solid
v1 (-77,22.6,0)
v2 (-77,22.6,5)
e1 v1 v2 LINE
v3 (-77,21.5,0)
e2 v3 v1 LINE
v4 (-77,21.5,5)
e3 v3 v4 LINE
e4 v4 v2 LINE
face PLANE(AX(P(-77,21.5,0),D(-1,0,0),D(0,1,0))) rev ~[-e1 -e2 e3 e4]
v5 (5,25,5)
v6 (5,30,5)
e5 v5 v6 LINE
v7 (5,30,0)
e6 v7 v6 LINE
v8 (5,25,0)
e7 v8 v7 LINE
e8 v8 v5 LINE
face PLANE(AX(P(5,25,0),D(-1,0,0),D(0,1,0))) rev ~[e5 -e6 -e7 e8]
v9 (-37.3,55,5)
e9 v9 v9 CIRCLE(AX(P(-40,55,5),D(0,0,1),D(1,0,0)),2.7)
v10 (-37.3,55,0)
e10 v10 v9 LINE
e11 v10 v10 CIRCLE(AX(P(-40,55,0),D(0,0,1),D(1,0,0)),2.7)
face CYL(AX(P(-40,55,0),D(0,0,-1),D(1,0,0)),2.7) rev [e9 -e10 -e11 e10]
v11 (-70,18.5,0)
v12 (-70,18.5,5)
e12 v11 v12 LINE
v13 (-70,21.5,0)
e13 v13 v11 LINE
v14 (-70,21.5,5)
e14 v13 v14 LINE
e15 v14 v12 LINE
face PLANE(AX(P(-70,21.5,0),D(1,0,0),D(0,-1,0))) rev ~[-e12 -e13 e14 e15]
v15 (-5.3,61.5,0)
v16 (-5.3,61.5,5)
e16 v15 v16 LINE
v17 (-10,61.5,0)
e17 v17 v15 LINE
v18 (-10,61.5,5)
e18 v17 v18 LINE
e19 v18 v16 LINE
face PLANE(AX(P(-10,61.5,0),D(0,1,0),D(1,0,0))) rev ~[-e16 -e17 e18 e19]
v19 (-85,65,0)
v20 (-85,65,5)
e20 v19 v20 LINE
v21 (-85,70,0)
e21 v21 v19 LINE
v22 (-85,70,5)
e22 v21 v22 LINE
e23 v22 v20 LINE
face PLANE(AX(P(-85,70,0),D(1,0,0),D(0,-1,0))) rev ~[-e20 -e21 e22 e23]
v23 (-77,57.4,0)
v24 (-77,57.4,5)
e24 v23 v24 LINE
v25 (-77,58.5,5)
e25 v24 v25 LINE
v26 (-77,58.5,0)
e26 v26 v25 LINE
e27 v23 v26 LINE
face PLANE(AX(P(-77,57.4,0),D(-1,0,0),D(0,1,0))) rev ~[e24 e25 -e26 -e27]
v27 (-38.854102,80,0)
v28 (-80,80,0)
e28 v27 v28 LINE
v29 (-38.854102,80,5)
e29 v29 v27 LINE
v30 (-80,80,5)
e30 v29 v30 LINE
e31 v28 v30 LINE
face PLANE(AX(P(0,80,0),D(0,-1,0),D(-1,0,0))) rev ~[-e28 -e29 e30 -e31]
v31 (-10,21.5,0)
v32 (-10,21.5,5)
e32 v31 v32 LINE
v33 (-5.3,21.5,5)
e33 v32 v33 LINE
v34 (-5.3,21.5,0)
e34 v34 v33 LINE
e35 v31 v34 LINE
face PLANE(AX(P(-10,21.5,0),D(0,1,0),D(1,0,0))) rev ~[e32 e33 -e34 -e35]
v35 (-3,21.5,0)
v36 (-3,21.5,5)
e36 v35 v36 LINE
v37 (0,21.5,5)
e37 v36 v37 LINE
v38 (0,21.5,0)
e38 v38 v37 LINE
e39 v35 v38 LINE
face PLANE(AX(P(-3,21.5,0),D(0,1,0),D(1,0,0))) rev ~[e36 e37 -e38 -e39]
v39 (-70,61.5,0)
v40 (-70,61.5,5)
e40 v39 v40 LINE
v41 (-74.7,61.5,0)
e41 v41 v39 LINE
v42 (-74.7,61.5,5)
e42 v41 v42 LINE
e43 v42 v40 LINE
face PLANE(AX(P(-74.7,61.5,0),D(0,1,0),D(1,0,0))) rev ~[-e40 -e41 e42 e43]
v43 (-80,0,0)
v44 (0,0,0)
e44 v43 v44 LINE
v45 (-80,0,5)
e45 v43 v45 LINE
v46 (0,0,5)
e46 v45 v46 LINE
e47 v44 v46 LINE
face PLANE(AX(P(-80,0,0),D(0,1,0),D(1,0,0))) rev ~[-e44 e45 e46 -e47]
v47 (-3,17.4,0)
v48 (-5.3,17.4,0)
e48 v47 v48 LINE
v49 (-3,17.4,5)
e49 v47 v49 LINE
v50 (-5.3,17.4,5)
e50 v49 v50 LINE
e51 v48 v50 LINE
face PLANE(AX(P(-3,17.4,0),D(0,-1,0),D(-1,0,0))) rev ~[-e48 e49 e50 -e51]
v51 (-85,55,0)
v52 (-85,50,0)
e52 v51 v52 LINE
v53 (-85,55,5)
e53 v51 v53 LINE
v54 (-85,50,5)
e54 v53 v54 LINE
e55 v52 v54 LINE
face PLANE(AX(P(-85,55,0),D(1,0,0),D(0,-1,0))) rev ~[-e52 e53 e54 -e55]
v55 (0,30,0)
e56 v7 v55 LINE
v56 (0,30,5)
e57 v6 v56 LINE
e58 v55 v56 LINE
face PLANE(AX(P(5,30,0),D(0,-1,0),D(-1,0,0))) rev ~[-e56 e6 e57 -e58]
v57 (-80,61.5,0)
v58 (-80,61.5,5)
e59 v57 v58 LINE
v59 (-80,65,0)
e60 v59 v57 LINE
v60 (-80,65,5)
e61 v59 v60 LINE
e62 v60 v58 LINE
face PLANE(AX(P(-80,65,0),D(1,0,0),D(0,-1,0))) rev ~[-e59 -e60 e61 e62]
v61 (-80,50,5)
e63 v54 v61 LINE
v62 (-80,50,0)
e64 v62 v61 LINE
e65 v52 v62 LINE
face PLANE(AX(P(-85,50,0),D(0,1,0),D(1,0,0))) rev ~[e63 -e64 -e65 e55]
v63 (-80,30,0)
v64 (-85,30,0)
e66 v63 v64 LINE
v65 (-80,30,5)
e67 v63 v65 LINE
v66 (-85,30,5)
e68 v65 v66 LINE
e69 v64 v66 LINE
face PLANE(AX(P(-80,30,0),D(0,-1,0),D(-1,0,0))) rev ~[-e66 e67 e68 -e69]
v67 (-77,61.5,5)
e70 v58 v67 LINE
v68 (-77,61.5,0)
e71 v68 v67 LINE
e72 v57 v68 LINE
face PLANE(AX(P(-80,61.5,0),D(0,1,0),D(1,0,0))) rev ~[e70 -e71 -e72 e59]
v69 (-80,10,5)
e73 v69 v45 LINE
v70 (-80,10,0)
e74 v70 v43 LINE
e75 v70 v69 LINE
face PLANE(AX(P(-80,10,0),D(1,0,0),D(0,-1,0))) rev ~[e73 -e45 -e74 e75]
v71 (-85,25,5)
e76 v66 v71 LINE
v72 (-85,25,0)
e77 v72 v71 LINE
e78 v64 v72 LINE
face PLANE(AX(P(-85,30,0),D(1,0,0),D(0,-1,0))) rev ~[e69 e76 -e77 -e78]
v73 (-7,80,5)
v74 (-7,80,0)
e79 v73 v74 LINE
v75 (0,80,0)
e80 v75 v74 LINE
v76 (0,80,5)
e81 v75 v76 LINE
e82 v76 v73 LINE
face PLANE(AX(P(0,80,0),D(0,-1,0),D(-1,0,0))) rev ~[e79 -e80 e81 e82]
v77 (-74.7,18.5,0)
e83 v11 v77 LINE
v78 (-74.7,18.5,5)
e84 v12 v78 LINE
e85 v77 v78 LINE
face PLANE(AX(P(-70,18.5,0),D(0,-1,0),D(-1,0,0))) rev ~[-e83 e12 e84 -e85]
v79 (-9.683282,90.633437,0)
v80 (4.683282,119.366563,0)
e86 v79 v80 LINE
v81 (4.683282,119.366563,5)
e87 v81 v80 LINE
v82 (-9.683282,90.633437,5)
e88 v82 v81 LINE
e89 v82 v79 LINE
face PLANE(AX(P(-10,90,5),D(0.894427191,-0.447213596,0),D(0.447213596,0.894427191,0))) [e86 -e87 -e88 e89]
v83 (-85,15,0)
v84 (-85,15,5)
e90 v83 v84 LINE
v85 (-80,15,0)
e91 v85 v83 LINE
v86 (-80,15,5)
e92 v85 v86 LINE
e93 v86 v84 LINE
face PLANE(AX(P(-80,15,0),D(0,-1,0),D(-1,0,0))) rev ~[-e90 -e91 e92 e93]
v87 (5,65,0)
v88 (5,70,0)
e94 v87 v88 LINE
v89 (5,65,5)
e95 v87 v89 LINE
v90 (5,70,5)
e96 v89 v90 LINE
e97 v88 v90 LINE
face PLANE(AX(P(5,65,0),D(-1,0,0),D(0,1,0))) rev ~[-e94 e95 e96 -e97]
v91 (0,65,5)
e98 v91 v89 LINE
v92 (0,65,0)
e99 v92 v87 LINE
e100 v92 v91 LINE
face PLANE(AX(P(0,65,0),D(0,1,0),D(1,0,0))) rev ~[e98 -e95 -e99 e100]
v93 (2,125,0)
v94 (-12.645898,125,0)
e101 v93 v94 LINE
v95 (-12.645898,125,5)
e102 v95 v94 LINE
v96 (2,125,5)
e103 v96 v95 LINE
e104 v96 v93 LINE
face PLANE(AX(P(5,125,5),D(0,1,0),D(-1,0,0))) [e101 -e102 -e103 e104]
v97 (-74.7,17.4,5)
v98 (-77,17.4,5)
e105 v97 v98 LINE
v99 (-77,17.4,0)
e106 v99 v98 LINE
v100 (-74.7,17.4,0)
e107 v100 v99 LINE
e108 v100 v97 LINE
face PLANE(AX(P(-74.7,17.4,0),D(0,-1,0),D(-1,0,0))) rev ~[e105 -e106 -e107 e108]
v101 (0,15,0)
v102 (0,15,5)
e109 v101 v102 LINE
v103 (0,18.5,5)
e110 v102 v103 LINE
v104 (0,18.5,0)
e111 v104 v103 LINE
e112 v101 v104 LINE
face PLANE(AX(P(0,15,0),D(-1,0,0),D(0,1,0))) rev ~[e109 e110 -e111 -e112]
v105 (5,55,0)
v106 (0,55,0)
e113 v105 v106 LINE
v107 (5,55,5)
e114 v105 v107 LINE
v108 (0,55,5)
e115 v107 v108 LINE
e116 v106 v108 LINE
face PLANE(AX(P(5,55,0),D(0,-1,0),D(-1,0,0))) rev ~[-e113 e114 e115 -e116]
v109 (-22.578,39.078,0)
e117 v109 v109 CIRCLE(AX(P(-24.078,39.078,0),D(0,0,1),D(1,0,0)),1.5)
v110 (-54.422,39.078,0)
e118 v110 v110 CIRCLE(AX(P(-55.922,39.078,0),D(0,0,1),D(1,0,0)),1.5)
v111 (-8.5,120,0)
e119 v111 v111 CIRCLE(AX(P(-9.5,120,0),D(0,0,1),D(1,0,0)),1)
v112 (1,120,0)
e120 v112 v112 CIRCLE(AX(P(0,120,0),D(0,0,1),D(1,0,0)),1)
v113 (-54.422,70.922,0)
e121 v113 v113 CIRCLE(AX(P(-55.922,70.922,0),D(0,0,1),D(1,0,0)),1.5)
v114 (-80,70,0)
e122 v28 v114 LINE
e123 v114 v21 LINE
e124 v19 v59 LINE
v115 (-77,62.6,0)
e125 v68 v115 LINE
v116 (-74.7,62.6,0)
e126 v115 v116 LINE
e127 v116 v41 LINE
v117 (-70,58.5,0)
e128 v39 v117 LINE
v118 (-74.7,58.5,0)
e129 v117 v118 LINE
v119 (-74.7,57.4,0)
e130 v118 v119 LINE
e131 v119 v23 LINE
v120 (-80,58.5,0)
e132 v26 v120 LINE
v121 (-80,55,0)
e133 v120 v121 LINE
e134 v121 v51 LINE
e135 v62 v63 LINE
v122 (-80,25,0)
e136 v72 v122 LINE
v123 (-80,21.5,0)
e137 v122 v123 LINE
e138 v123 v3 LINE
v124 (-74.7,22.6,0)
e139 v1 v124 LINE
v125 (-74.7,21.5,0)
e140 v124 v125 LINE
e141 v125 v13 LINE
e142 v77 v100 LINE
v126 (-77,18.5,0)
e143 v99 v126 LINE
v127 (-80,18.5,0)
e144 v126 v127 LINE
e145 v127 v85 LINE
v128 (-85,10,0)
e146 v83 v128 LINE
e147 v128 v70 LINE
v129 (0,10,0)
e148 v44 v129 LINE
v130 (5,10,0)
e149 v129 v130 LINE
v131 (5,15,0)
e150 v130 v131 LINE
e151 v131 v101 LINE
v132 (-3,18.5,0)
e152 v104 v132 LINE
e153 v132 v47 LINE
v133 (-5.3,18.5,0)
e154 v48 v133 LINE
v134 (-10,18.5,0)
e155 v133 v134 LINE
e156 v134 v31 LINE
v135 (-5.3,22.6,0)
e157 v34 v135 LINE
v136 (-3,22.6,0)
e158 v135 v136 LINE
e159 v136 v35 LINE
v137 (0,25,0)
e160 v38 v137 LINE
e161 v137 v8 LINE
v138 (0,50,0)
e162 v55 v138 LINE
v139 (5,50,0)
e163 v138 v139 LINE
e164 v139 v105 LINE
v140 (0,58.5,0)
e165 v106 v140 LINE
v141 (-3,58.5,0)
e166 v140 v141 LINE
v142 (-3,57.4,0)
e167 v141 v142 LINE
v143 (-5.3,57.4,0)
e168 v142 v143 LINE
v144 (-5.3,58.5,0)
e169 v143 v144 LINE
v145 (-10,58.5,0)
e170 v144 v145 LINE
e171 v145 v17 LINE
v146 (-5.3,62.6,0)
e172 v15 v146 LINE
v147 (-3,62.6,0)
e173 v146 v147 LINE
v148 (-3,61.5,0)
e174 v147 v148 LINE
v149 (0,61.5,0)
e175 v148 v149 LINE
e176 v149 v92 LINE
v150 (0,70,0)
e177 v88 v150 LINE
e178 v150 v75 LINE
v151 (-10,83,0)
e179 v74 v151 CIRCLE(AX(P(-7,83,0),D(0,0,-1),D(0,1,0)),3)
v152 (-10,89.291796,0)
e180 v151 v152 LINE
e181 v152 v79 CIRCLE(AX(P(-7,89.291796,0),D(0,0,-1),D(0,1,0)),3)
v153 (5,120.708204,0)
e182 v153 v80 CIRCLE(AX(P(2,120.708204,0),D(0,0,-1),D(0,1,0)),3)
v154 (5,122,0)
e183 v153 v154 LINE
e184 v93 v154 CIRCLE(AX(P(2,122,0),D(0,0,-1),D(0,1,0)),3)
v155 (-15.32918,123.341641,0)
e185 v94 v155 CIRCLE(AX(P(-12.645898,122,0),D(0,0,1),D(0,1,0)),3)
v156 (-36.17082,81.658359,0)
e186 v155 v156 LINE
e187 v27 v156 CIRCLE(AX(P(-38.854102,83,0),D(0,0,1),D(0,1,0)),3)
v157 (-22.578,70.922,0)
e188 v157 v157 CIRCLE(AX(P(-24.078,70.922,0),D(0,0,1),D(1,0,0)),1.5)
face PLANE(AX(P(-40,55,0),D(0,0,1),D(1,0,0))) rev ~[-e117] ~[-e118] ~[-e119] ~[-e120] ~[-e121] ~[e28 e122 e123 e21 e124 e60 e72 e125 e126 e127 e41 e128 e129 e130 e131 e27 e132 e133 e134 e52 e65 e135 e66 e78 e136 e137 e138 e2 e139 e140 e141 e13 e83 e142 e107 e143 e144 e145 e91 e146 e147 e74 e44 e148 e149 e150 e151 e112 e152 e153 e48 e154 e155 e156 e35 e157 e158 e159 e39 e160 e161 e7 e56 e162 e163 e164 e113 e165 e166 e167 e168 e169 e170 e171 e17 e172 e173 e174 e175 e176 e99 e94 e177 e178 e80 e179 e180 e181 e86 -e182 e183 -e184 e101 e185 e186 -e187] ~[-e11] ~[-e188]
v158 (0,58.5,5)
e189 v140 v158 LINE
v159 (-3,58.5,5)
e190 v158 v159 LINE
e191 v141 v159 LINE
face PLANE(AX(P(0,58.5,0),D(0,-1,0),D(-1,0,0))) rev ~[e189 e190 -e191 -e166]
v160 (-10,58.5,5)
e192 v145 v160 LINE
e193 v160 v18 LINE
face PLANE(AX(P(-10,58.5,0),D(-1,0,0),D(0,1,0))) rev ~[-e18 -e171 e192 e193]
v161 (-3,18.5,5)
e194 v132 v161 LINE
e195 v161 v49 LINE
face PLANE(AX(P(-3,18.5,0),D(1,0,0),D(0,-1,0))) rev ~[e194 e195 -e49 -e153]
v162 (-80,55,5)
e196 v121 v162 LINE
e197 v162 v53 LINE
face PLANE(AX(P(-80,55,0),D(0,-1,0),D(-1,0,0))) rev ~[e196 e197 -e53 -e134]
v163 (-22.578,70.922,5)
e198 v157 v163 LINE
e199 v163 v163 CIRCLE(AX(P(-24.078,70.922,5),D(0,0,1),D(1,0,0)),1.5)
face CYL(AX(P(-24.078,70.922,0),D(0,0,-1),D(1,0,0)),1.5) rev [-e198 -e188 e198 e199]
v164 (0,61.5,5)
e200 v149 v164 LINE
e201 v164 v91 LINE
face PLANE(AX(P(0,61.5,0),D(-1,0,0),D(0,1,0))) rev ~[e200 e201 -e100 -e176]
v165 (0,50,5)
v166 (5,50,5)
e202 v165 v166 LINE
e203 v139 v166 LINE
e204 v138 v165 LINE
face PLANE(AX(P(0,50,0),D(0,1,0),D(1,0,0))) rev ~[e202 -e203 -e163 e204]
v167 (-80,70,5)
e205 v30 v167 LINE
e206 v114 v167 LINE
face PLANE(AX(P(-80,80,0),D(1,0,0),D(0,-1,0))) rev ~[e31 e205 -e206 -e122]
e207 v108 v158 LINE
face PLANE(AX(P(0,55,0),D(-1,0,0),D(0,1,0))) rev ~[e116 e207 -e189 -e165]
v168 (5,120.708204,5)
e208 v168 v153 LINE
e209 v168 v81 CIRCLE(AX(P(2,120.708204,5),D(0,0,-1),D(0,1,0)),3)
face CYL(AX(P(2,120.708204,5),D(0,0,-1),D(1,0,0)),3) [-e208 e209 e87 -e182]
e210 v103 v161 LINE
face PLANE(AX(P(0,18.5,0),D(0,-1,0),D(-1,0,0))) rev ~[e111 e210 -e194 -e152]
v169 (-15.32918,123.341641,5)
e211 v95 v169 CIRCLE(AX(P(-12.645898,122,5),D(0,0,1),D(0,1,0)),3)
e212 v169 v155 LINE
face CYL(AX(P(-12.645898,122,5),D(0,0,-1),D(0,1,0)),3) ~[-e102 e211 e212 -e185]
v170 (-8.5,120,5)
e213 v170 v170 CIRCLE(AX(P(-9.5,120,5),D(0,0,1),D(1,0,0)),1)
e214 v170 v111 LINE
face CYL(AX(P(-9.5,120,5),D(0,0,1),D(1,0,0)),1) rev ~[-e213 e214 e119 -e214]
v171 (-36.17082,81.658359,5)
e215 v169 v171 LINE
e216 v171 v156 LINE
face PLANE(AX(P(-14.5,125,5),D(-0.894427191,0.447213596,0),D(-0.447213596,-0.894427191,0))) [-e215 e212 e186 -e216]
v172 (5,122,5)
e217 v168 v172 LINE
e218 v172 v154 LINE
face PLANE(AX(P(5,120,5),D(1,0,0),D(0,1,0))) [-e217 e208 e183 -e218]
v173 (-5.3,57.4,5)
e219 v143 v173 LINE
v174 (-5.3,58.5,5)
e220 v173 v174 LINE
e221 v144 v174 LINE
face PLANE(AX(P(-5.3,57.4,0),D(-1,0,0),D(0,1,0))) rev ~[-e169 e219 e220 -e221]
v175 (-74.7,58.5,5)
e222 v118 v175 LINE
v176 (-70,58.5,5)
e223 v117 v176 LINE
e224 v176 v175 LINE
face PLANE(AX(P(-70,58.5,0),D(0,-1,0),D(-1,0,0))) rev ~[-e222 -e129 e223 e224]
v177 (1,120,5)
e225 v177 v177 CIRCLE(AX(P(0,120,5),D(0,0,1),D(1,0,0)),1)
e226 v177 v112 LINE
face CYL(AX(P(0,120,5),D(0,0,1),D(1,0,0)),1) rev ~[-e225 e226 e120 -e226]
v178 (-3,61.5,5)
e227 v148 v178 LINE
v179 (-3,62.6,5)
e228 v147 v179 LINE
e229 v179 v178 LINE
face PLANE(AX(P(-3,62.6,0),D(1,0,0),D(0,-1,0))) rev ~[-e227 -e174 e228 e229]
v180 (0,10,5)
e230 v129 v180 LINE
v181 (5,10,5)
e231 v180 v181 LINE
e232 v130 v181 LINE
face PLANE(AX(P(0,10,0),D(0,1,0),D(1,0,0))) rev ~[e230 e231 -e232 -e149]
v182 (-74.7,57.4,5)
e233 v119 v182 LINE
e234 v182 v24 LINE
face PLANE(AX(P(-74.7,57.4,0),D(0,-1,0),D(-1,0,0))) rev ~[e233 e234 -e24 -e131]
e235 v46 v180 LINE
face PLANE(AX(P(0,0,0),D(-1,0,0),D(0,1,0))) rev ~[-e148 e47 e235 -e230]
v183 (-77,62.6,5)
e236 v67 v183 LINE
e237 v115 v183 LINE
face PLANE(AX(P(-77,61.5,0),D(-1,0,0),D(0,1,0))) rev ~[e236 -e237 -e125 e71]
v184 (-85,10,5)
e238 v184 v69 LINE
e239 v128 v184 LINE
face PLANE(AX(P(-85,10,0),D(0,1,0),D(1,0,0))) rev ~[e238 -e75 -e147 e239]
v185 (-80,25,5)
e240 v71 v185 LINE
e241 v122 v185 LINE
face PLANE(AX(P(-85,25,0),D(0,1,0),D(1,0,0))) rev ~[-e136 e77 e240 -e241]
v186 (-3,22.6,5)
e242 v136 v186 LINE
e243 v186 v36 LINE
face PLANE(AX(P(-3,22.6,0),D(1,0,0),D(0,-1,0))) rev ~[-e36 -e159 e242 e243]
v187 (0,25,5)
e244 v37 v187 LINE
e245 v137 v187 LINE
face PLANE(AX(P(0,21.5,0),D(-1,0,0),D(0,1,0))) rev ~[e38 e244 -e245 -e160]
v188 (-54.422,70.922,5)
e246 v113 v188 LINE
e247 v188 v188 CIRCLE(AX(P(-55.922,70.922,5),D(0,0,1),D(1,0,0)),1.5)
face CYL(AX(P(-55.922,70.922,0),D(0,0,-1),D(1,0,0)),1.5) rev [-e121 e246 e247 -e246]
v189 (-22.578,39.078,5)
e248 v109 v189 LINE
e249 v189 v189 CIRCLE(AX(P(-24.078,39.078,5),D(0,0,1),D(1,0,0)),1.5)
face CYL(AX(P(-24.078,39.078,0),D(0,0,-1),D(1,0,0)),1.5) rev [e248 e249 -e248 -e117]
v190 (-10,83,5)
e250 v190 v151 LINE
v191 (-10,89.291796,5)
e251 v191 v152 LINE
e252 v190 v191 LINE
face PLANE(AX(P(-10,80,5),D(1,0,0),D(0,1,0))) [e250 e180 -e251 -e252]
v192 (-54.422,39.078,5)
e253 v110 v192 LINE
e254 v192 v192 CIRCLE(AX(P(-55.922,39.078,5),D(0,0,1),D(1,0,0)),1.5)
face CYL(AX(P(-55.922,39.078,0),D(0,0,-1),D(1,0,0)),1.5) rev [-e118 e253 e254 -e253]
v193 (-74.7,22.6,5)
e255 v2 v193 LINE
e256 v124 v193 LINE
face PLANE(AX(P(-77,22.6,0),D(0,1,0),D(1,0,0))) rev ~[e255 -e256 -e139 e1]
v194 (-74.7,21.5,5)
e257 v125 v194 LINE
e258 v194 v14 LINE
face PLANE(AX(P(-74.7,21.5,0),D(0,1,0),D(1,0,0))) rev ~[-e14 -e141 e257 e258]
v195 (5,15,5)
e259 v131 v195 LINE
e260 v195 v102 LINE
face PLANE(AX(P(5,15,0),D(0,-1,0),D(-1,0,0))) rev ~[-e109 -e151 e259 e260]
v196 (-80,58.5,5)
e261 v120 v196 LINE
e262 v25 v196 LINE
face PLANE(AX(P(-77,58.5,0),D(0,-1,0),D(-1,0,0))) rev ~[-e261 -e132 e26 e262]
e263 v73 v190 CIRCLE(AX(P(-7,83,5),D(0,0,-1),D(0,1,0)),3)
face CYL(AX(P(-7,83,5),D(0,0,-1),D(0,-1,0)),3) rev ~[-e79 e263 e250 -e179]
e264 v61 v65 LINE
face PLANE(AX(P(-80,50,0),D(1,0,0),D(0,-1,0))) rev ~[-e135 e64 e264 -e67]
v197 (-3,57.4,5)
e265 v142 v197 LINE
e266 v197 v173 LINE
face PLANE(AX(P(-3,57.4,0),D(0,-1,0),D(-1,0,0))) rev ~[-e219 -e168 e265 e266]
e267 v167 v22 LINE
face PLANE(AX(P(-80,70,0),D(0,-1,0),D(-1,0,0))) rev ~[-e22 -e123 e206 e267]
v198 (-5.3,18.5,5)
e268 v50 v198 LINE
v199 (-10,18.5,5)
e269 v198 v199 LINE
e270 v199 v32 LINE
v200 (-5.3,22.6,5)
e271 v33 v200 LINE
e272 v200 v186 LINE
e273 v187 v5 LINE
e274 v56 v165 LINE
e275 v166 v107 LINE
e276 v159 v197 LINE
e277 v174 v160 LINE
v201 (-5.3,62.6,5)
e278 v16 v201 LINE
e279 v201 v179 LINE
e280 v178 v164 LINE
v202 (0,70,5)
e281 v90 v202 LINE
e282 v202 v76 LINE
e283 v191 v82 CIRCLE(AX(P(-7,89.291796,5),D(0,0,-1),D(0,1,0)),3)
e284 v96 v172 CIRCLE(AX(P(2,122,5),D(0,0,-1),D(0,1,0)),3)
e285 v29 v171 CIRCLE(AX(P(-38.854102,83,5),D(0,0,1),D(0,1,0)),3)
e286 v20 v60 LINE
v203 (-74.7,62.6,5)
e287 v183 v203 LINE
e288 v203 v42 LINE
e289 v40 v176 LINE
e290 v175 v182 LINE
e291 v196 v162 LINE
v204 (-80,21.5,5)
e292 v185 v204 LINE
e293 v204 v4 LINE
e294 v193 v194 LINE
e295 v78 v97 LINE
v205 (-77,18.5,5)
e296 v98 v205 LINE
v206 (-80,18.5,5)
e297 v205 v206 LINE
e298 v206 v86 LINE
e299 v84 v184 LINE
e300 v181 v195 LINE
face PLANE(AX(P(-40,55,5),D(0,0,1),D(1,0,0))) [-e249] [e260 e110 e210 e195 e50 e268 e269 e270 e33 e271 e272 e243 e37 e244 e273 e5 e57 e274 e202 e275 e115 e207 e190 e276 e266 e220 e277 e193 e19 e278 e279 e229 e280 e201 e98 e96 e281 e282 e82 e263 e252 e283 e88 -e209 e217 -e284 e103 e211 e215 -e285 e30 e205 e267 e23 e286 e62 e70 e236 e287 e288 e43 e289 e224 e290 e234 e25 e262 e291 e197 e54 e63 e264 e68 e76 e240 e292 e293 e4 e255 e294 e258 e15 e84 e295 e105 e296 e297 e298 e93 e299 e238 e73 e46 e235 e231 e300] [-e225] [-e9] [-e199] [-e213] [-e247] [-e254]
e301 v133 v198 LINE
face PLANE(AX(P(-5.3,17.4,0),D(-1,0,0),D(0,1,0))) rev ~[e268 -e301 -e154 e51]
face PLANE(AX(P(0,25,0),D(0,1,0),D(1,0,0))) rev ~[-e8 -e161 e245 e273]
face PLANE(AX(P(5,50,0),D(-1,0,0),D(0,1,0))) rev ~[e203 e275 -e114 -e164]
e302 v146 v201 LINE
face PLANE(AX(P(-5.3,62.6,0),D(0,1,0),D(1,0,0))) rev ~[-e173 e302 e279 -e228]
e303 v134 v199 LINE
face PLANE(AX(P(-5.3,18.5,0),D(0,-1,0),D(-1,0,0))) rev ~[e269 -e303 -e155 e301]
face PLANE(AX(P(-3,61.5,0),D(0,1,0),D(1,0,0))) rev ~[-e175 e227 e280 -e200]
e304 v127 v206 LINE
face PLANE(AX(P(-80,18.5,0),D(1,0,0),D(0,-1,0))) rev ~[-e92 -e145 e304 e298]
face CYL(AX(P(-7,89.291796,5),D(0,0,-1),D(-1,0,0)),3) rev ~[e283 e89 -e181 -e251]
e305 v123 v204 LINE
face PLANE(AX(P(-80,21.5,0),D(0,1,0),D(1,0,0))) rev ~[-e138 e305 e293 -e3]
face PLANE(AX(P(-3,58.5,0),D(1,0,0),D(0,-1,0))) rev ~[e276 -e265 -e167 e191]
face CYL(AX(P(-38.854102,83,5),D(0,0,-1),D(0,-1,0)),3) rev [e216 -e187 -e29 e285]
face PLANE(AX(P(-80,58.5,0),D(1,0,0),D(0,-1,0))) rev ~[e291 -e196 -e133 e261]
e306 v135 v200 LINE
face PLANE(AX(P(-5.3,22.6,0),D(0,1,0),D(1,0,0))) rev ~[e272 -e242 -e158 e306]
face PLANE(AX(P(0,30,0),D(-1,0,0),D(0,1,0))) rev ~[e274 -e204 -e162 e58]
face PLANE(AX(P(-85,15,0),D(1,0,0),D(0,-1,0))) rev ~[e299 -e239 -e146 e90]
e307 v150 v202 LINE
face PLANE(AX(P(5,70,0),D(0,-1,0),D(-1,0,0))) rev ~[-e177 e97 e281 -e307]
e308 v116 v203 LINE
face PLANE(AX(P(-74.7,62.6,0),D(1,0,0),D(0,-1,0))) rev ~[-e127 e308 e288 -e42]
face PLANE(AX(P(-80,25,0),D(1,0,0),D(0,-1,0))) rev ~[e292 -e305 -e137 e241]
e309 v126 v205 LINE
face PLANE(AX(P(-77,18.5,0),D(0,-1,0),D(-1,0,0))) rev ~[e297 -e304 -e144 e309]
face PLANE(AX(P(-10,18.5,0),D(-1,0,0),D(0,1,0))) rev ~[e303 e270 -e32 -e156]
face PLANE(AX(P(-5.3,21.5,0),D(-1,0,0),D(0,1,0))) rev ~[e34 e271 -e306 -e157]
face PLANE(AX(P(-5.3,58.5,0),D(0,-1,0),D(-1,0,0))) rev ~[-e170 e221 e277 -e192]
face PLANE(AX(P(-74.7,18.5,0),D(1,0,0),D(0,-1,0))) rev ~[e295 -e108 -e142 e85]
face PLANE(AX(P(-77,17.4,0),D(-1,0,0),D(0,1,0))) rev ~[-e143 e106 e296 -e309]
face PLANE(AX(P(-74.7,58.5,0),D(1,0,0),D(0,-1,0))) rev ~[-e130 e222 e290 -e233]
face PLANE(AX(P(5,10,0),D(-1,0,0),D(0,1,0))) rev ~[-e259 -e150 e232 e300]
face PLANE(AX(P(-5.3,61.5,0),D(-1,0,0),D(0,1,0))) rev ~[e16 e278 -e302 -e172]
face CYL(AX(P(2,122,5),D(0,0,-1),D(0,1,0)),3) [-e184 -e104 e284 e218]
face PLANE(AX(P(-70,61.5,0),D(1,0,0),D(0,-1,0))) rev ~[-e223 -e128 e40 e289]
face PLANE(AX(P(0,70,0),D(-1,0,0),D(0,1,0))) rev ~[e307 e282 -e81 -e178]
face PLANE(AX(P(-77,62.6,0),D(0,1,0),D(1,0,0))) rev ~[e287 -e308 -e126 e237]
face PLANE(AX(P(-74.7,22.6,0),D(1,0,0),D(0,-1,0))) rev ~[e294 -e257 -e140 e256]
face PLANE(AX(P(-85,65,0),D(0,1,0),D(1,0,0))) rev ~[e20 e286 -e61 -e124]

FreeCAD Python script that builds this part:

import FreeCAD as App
import Part
import Sketcher
from FreeCAD import Vector


def edges_at(feature, points):
    """Names of the edges that pass closest to the given points."""
    edges = feature.Shape.Edges
    near = lambda p: min(range(len(edges)), key=lambda i: edges[i].distToShape(Part.Vertex(*p))[0])
    return sorted({f"Edge{near(p) + 1}" for p in points})

doc = App.newDocument("Part")
body = doc.addObject("PartDesign::Body", "Body")

# Sketch on XY plane
sketch1 = doc.addObject("Sketcher::SketchObject", "Sketch")
body.addObject(sketch1)
sketch1.AttachmentSupport = (doc.XY_Plane, [""])
sketch1.MapMode = "FlatFace"
sketch1.addGeometry([
    Part.LineSegment(Vector(0, 80, 0), Vector(-80, 80, 0)),  # 0
    Part.LineSegment(Vector(-80, 80, 0), Vector(-80, 70, 0)),  # 1
    Part.LineSegment(Vector(-80, 70, 0), Vector(-85, 70, 0)),  # 2
    Part.LineSegment(Vector(-85, 70, 0), Vector(-85, 65, 0)),  # 3
    Part.LineSegment(Vector(-85, 65, 0), Vector(-80, 65, 0)),  # 4
    Part.LineSegment(Vector(-80, 65, 0), Vector(-80, 61.5, 0)),  # 5
    Part.LineSegment(Vector(-80, 61.5, 0), Vector(-77, 61.5, 0)),  # 6
    Part.LineSegment(Vector(-77, 61.5, 0), Vector(-77, 62.6, 0)),  # 7
    Part.LineSegment(Vector(-77, 62.6, 0), Vector(-74.7, 62.6, 0)),  # 8
    Part.LineSegment(Vector(-74.7, 62.6, 0), Vector(-74.7, 61.5, 0)),  # 9
    Part.LineSegment(Vector(-74.7, 61.5, 0), Vector(-70, 61.5, 0)),  # 10
    Part.LineSegment(Vector(-70, 61.5, 0), Vector(-70, 58.5, 0)),  # 11
    Part.LineSegment(Vector(-70, 58.5, 0), Vector(-74.7, 58.5, 0)),  # 12
    Part.LineSegment(Vector(-74.7, 58.5, 0), Vector(-74.7, 57.4, 0)),  # 13
    Part.LineSegment(Vector(-74.7, 57.4, 0), Vector(-77, 57.4, 0)),  # 14
    Part.LineSegment(Vector(-77, 57.4, 0), Vector(-77, 58.5, 0)),  # 15
    Part.LineSegment(Vector(-77, 58.5, 0), Vector(-80, 58.5, 0)),  # 16
    Part.LineSegment(Vector(-80, 58.5, 0), Vector(-80, 55, 0)),  # 17
    Part.LineSegment(Vector(-80, 55, 0), Vector(-85, 55, 0)),  # 18
    Part.LineSegment(Vector(-85, 55, 0), Vector(-85, 50, 0)),  # 19
    Part.LineSegment(Vector(-85, 50, 0), Vector(-80, 50, 0)),  # 20
    Part.LineSegment(Vector(-80, 50, 0), Vector(-80, 30, 0)),  # 21
    Part.LineSegment(Vector(-80, 30, 0), Vector(-85, 30, 0)),  # 22
    Part.LineSegment(Vector(-85, 30, 0), Vector(-85, 25, 0)),  # 23
    Part.LineSegment(Vector(-85, 25, 0), Vector(-80, 25, 0)),  # 24
    Part.LineSegment(Vector(-80, 25, 0), Vector(-80, 21.5, 0)),  # 25
    Part.LineSegment(Vector(-80, 21.5, 0), Vector(-77, 21.5, 0)),  # 26
    Part.LineSegment(Vector(-77, 21.5, 0), Vector(-77, 22.6, 0)),  # 27
    Part.LineSegment(Vector(-77, 22.6, 0), Vector(-74.7, 22.6, 0)),  # 28
    Part.LineSegment(Vector(-74.7, 22.6, 0), Vector(-74.7, 21.5, 0)),  # 29
    Part.LineSegment(Vector(-74.7, 21.5, 0), Vector(-70, 21.5, 0)),  # 30
    Part.LineSegment(Vector(-70, 21.5, 0), Vector(-70, 18.5, 0)),  # 31
    Part.LineSegment(Vector(-70, 18.5, 0), Vector(-74.7, 18.5, 0)),  # 32
    Part.LineSegment(Vector(-74.7, 18.5, 0), Vector(-74.7, 17.4, 0)),  # 33
    Part.LineSegment(Vector(-74.7, 17.4, 0), Vector(-77, 17.4, 0)),  # 34
    Part.LineSegment(Vector(-77, 17.4, 0), Vector(-77, 18.5, 0)),  # 35
    Part.LineSegment(Vector(-77, 18.5, 0), Vector(-80, 18.5, 0)),  # 36
    Part.LineSegment(Vector(-80, 18.5, 0), Vector(-80, 15, 0)),  # 37
    Part.LineSegment(Vector(-80, 15, 0), Vector(-85, 15, 0)),  # 38
    Part.LineSegment(Vector(-85, 15, 0), Vector(-85, 10, 0)),  # 39
    Part.LineSegment(Vector(-85, 10, 0), Vector(-80, 10, 0)),  # 40
    Part.LineSegment(Vector(-80, 10, 0), Vector(-80, 0, 0)),  # 41
    Part.LineSegment(Vector(-80, 0, 0), Vector(0, 0, 0)),  # 42
    Part.LineSegment(Vector(0, 0, 0), Vector(0, 10, 0)),  # 43
    Part.LineSegment(Vector(0, 10, 0), Vector(5, 10, 0)),  # 44
    Part.LineSegment(Vector(5, 10, 0), Vector(5, 15, 0)),  # 45
    Part.LineSegment(Vector(5, 15, 0), Vector(0, 15, 0)),  # 46
    Part.LineSegment(Vector(0, 15, 0), Vector(0, 18.5, 0)),  # 47
    Part.LineSegment(Vector(0, 18.5, 0), Vector(-3, 18.5, 0)),  # 48
    Part.LineSegment(Vector(-3, 18.5, 0), Vector(-3, 17.4, 0)),  # 49
    Part.LineSegment(Vector(-3, 17.4, 0), Vector(-5.3, 17.4, 0)),  # 50
    Part.LineSegment(Vector(-5.3, 17.4, 0), Vector(-5.3, 18.5, 0)),  # 51
    Part.LineSegment(Vector(-5.3, 18.5, 0), Vector(-10, 18.5, 0)),  # 52
    Part.LineSegment(Vector(-10, 18.5, 0), Vector(-10, 21.5, 0)),  # 53
    Part.LineSegment(Vector(-10, 21.5, 0), Vector(-5.3, 21.5, 0)),  # 54
    Part.LineSegment(Vector(-5.3, 21.5, 0), Vector(-5.3, 22.6, 0)),  # 55
    Part.LineSegment(Vector(-5.3, 22.6, 0), Vector(-3, 22.6, 0)),  # 56
    Part.LineSegment(Vector(-3, 22.6, 0), Vector(-3, 21.5, 0)),  # 57
    Part.LineSegment(Vector(-3, 21.5, 0), Vector(0, 21.5, 0)),  # 58
    Part.LineSegment(Vector(0, 21.5, 0), Vector(0, 25, 0)),  # 59
    Part.LineSegment(Vector(0, 25, 0), Vector(5, 25, 0)),  # 60
    Part.LineSegment(Vector(5, 25, 0), Vector(5, 30, 0)),  # 61
    Part.LineSegment(Vector(5, 30, 0), Vector(0, 30, 0)),  # 62
    Part.LineSegment(Vector(0, 30, 0), Vector(0, 50, 0)),  # 63
    Part.LineSegment(Vector(0, 50, 0), Vector(5, 50, 0)),  # 64
    Part.LineSegment(Vector(5, 50, 0), Vector(5, 55, 0)),  # 65
    Part.LineSegment(Vector(5, 55, 0), Vector(0, 55, 0)),  # 66
    Part.LineSegment(Vector(0, 55, 0), Vector(0, 58.5, 0)),  # 67
    Part.LineSegment(Vector(0, 58.5, 0), Vector(-3, 58.5, 0)),  # 68
    Part.LineSegment(Vector(-3, 58.5, 0), Vector(-3, 57.4, 0)),  # 69
    Part.LineSegment(Vector(-3, 57.4, 0), Vector(-5.3, 57.4, 0)),  # 70
    Part.LineSegment(Vector(-5.3, 57.4, 0), Vector(-5.3, 58.5, 0)),  # 71
    Part.LineSegment(Vector(-5.3, 58.5, 0), Vector(-10, 58.5, 0)),  # 72
    Part.LineSegment(Vector(-10, 58.5, 0), Vector(-10, 61.5, 0)),  # 73
    Part.LineSegment(Vector(-10, 61.5, 0), Vector(-5.3, 61.5, 0)),  # 74
    Part.LineSegment(Vector(-5.3, 61.5, 0), Vector(-5.3, 62.6, 0)),  # 75
    Part.LineSegment(Vector(-5.3, 62.6, 0), Vector(-3, 62.6, 0)),  # 76
    Part.LineSegment(Vector(-3, 62.6, 0), Vector(-3, 61.5, 0)),  # 77
    Part.LineSegment(Vector(-3, 61.5, 0), Vector(0, 61.5, 0)),  # 78
    Part.LineSegment(Vector(0, 61.5, 0), Vector(0, 65, 0)),  # 79
    Part.LineSegment(Vector(0, 65, 0), Vector(5, 65, 0)),  # 80
    Part.LineSegment(Vector(5, 65, 0), Vector(5, 70, 0)),  # 81
    Part.LineSegment(Vector(5, 70, 0), Vector(0, 70, 0)),  # 82
    Part.LineSegment(Vector(0, 70, 0), Vector(0, 80, 0)),  # 83
    Part.Circle(Vector(-55.922, 39.078, 0), Vector(0, 0, 1), 1.5),  # 84
    Part.Circle(Vector(-24.078, 39.078, 0), Vector(0, 0, 1), 1.5),  # 85
    Part.Circle(Vector(-55.922, 70.922, 0), Vector(0, 0, 1), 1.5),  # 86
    Part.Circle(Vector(-40, 55, 0), Vector(0, 0, 1), 11.5),  # 87
    Part.Circle(Vector(-24.078, 70.922, 0), Vector(0, 0, 1), 1.5),  # 88
], False)
sketch1.addConstraint([
    Sketcher.Constraint("Coincident", 0, 2, 1, 1),
    Sketcher.Constraint("Coincident", 1, 2, 2, 1),
    Sketcher.Constraint("Coincident", 2, 2, 3, 1),
    Sketcher.Constraint("Coincident", 3, 2, 4, 1),
    Sketcher.Constraint("Coincident", 4, 2, 5, 1),
    Sketcher.Constraint("Coincident", 5, 2, 6, 1),
    Sketcher.Constraint("Coincident", 6, 2, 7, 1),
    Sketcher.Constraint("Coincident", 7, 2, 8, 1),
    Sketcher.Constraint("Coincident", 8, 2, 9, 1),
    Sketcher.Constraint("Coincident", 9, 2, 10, 1),
    Sketcher.Constraint("Coincident", 10, 2, 11, 1),
    Sketcher.Constraint("Coincident", 11, 2, 12, 1),
    Sketcher.Constraint("Coincident", 12, 2, 13, 1),
    Sketcher.Constraint("Coincident", 13, 2, 14, 1),
    Sketcher.Constraint("Coincident", 14, 2, 15, 1),
    Sketcher.Constraint("Coincident", 15, 2, 16, 1),
    Sketcher.Constraint("Coincident", 16, 2, 17, 1),
    Sketcher.Constraint("Coincident", 17, 2, 18, 1),
    Sketcher.Constraint("Coincident", 18, 2, 19, 1),
    Sketcher.Constraint("Coincident", 19, 2, 20, 1),
    Sketcher.Constraint("Coincident", 20, 2, 21, 1),
    Sketcher.Constraint("Coincident", 21, 2, 22, 1),
    Sketcher.Constraint("Coincident", 22, 2, 23, 1),
    Sketcher.Constraint("Coincident", 23, 2, 24, 1),
    Sketcher.Constraint("Coincident", 24, 2, 25, 1),
    Sketcher.Constraint("Coincident", 25, 2, 26, 1),
    Sketcher.Constraint("Coincident", 26, 2, 27, 1),
    Sketcher.Constraint("Coincident", 27, 2, 28, 1),
    Sketcher.Constraint("Coincident", 28, 2, 29, 1),
    Sketcher.Constraint("Coincident", 29, 2, 30, 1),
    Sketcher.Constraint("Coincident", 30, 2, 31, 1),
    Sketcher.Constraint("Coincident", 31, 2, 32, 1),
    Sketcher.Constraint("Coincident", 32, 2, 33, 1),
    Sketcher.Constraint("Coincident", 33, 2, 34, 1),
    Sketcher.Constraint("Coincident", 34, 2, 35, 1),
    Sketcher.Constraint("Coincident", 35, 2, 36, 1),
    Sketcher.Constraint("Coincident", 36, 2, 37, 1),
    Sketcher.Constraint("Coincident", 37, 2, 38, 1),
    Sketcher.Constraint("Coincident", 38, 2, 39, 1),
    Sketcher.Constraint("Coincident", 39, 2, 40, 1),
    Sketcher.Constraint("Coincident", 40, 2, 41, 1),
    Sketcher.Constraint("Coincident", 41, 2, 42, 1),
    Sketcher.Constraint("Coincident", 42, 2, 43, 1),
    Sketcher.Constraint("Coincident", 43, 2, 44, 1),
    Sketcher.Constraint("Coincident", 44, 2, 45, 1),
    Sketcher.Constraint("Coincident", 45, 2, 46, 1),
    Sketcher.Constraint("Coincident", 46, 2, 47, 1),
    Sketcher.Constraint("Coincident", 47, 2, 48, 1),
    Sketcher.Constraint("Coincident", 48, 2, 49, 1),
    Sketcher.Constraint("Coincident", 49, 2, 50, 1),
    Sketcher.Constraint("Coincident", 50, 2, 51, 1),
    Sketcher.Constraint("Coincident", 51, 2, 52, 1),
    Sketcher.Constraint("Coincident", 52, 2, 53, 1),
    Sketcher.Constraint("Coincident", 53, 2, 54, 1),
    Sketcher.Constraint("Coincident", 54, 2, 55, 1),
    Sketcher.Constraint("Coincident", 55, 2, 56, 1),
    Sketcher.Constraint("Coincident", 56, 2, 57, 1),
    Sketcher.Constraint("Coincident", 57, 2, 58, 1),
    Sketcher.Constraint("Coincident", 58, 2, 59, 1),
    Sketcher.Constraint("Coincident", 59, 2, 60, 1),
    Sketcher.Constraint("Coincident", 60, 2, 61, 1),
    Sketcher.Constraint("Coincident", 61, 2, 62, 1),
    Sketcher.Constraint("Coincident", 62, 2, 63, 1),
    Sketcher.Constraint("Coincident", 63, 2, 64, 1),
    Sketcher.Constraint("Coincident", 64, 2, 65, 1),
    Sketcher.Constraint("Coincident", 65, 2, 66, 1),
    Sketcher.Constraint("Coincident", 66, 2, 67, 1),
    Sketcher.Constraint("Coincident", 67, 2, 68, 1),
    Sketcher.Constraint("Coincident", 68, 2, 69, 1),
    Sketcher.Constraint("Coincident", 69, 2, 70, 1),
    Sketcher.Constraint("Coincident", 70, 2, 71, 1),
    Sketcher.Constraint("Coincident", 71, 2, 72, 1),
    Sketcher.Constraint("Coincident", 72, 2, 73, 1),
    Sketcher.Constraint("Coincident", 73, 2, 74, 1),
    Sketcher.Constraint("Coincident", 74, 2, 75, 1),
    Sketcher.Constraint("Coincident", 75, 2, 76, 1),
    Sketcher.Constraint("Coincident", 76, 2, 77, 1),
    Sketcher.Constraint("Coincident", 77, 2, 78, 1),
    Sketcher.Constraint("Coincident", 78, 2, 79, 1),
    Sketcher.Constraint("Coincident", 79, 2, 80, 1),
    Sketcher.Constraint("Coincident", 80, 2, 81, 1),
    Sketcher.Constraint("Coincident", 81, 2, 82, 1),
    Sketcher.Constraint("Coincident", 82, 2, 83, 1),
    Sketcher.Constraint("Coincident", 83, 2, 0, 1),
    Sketcher.Constraint("Horizontal", 0),
    Sketcher.Constraint("Vertical", 1),
    Sketcher.Constraint("Horizontal", 2),
    Sketcher.Constraint("Vertical", 3),
    Sketcher.Constraint("Horizontal", 4),
    Sketcher.Constraint("Vertical", 5),
    Sketcher.Constraint("Horizontal", 6),
    Sketcher.Constraint("Vertical", 7),
    Sketcher.Constraint("Horizontal", 8),
    Sketcher.Constraint("Vertical", 9),
    Sketcher.Constraint("Horizontal", 10),
    Sketcher.Constraint("Vertical", 11),
    Sketcher.Constraint("Horizontal", 12),
    Sketcher.Constraint("Vertical", 13),
    Sketcher.Constraint("Horizontal", 14),
    Sketcher.Constraint("Vertical", 15),
    Sketcher.Constraint("Horizontal", 16),
    Sketcher.Constraint("Vertical", 17),
    Sketcher.Constraint("Horizontal", 18),
    Sketcher.Constraint("Vertical", 19),
    Sketcher.Constraint("Horizontal", 20),
    Sketcher.Constraint("Vertical", 21),
    Sketcher.Constraint("Horizontal", 22),
    Sketcher.Constraint("Vertical", 23),
    Sketcher.Constraint("Horizontal", 24),
    Sketcher.Constraint("Vertical", 25),
    Sketcher.Constraint("Horizontal", 26),
    Sketcher.Constraint("Vertical", 27),
    Sketcher.Constraint("Horizontal", 28),
    Sketcher.Constraint("Vertical", 29),
    Sketcher.Constraint("Horizontal", 30),
    Sketcher.Constraint("Vertical", 31),
    Sketcher.Constraint("Horizontal", 32),
    Sketcher.Constraint("Vertical", 33),
    Sketcher.Constraint("Horizontal", 34),
    Sketcher.Constraint("Vertical", 35),
    Sketcher.Constraint("Horizontal", 36),
    Sketcher.Constraint("Vertical", 37),
    Sketcher.Constraint("Horizontal", 38),
    Sketcher.Constraint("Vertical", 39),
    Sketcher.Constraint("Horizontal", 40),
    Sketcher.Constraint("Vertical", 41),
    Sketcher.Constraint("Horizontal", 42),
    Sketcher.Constraint("Vertical", 43),
    Sketcher.Constraint("Horizontal", 44),
    Sketcher.Constraint("Vertical", 45),
    Sketcher.Constraint("Horizontal", 46),
    Sketcher.Constraint("Vertical", 47),
    Sketcher.Constraint("Horizontal", 48),
    Sketcher.Constraint("Vertical", 49),
    Sketcher.Constraint("Horizontal", 50),
    Sketcher.Constraint("Vertical", 51),
    Sketcher.Constraint("Horizontal", 52),
    Sketcher.Constraint("Vertical", 53),
    Sketcher.Constraint("Horizontal", 54),
    Sketcher.Constraint("Vertical", 55),
    Sketcher.Constraint("Horizontal", 56),
    Sketcher.Constraint("Vertical", 57),
    Sketcher.Constraint("Horizontal", 58),
    Sketcher.Constraint("Vertical", 59),
    Sketcher.Constraint("Horizontal", 60),
    Sketcher.Constraint("Vertical", 61),
    Sketcher.Constraint("Horizontal", 62),
    Sketcher.Constraint("Vertical", 63),
    Sketcher.Constraint("Horizontal", 64),
    Sketcher.Constraint("Vertical", 65),
    Sketcher.Constraint("Horizontal", 66),
    Sketcher.Constraint("Vertical", 67),
    Sketcher.Constraint("Horizontal", 68),
    Sketcher.Constraint("Vertical", 69),
    Sketcher.Constraint("Horizontal", 70),
    Sketcher.Constraint("Vertical", 71),
    Sketcher.Constraint("Horizontal", 72),
    Sketcher.Constraint("Vertical", 73),
    Sketcher.Constraint("Horizontal", 74),
    Sketcher.Constraint("Vertical", 75),
    Sketcher.Constraint("Horizontal", 76),
    Sketcher.Constraint("Vertical", 77),
    Sketcher.Constraint("Horizontal", 78),
    Sketcher.Constraint("Vertical", 79),
    Sketcher.Constraint("Horizontal", 80),
    Sketcher.Constraint("Vertical", 81),
    Sketcher.Constraint("Horizontal", 82),
    Sketcher.Constraint("Vertical", 83),
    Sketcher.Constraint("Coincident", 42, 2, -1, 1),
    Sketcher.Constraint("Equal", 84, 85),
    Sketcher.Constraint("Equal", 85, 86),
    Sketcher.Constraint("Equal", 86, 88),
    Sketcher.Constraint("PointOnObject", 46, 2, -2),
    Sketcher.Constraint("PointOnObject", 58, 2, -2),
    Sketcher.Constraint("PointOnObject", 62, 2, -2),
    Sketcher.Constraint("PointOnObject", 66, 2, -2),
    Sketcher.Constraint("PointOnObject", 78, 2, -2),
    Sketcher.Constraint("PointOnObject", 82, 2, -2),
    Sketcher.Constraint("Horizontal", 84, 3, 85, 3),
    Sketcher.Constraint("Horizontal", 86, 3, 88, 3),
    Sketcher.Constraint("Horizontal", 6, 2, 9, 2),
    Sketcher.Constraint("Horizontal", 12, 2, 15, 2),
    Sketcher.Constraint("Horizontal", 87, 3, 17, 2),
    Sketcher.Constraint("Horizontal", 26, 2, 29, 2),
    Sketcher.Constraint("Horizontal", 32, 2, 35, 2),
    Sketcher.Constraint("Horizontal", 40, 2, 43, 2),
    Sketcher.Constraint("Horizontal", 38, 2, 45, 2),
    Sketcher.Constraint("Horizontal", 36, 2, 47, 2),
    Sketcher.Constraint("Horizontal", 34, 2, 49, 2),
    Sketcher.Constraint("Horizontal", 48, 2, 51, 2),
    Sketcher.Constraint("Horizontal", 30, 2, 53, 2),
    Sketcher.Constraint("Horizontal", 28, 2, 55, 2),
    Sketcher.Constraint("Horizontal", 54, 2, 57, 2),
    Sketcher.Constraint("Horizontal", 24, 2, 59, 2),
    Sketcher.Constraint("Horizontal", 22, 2, 61, 2),
    Sketcher.Constraint("Horizontal", 20, 2, 63, 2),
    Sketcher.Constraint("Horizontal", 18, 2, 65, 2),
    Sketcher.Constraint("Horizontal", 16, 2, 67, 2),
    Sketcher.Constraint("Horizontal", 14, 2, 69, 2),
    Sketcher.Constraint("Horizontal", 68, 2, 71, 2),
    Sketcher.Constraint("Horizontal", 10, 2, 73, 2),
    Sketcher.Constraint("Horizontal", 8, 2, 75, 2),
    Sketcher.Constraint("Horizontal", 74, 2, 77, 2),
    Sketcher.Constraint("Horizontal", 4, 2, 79, 2),
    Sketcher.Constraint("Horizontal", 2, 2, 81, 2),
    Sketcher.Constraint("Vertical", 84, 3, 86, 3),
    Sketcher.Constraint("Vertical", 85, 3, 88, 3),
    Sketcher.Constraint("Vertical", 1, 2, 4, 2),
    Sketcher.Constraint("Vertical", 9, 2, 12, 2),
    Sketcher.Constraint("Vertical", 7, 2, 14, 2),
    Sketcher.Constraint("Vertical", 5, 2, 16, 2),
    Sketcher.Constraint("Vertical", 3, 2, 18, 2),
    Sketcher.Constraint("Vertical", 17, 2, 20, 2),
    Sketcher.Constraint("Vertical", 19, 2, 22, 2),
    Sketcher.Constraint("Vertical", 21, 2, 24, 2),
    Sketcher.Constraint("Vertical", 15, 2, 26, 2),
    Sketcher.Constraint("Vertical", 13, 2, 28, 2),
    Sketcher.Constraint("Vertical", 11, 2, 30, 2),
    Sketcher.Constraint("Vertical", 29, 2, 32, 2),
    Sketcher.Constraint("Vertical", 27, 2, 34, 2),
    Sketcher.Constraint("Vertical", 25, 2, 36, 2),
    Sketcher.Constraint("Vertical", 23, 2, 38, 2),
    Sketcher.Constraint("Vertical", 37, 2, 40, 2),
    Sketcher.Constraint("Vertical", 51, 2, 54, 2),
    Sketcher.Constraint("Vertical", 49, 2, 56, 2),
    Sketcher.Constraint("Vertical", 45, 2, 60, 2),
    Sketcher.Constraint("Vertical", 61, 2, 64, 2),
    Sketcher.Constraint("Vertical", 57, 2, 68, 2),
    Sketcher.Constraint("Vertical", 55, 2, 70, 2),
    Sketcher.Constraint("Vertical", 53, 2, 72, 2),
    Sketcher.Constraint("Vertical", 71, 2, 74, 2),
    Sketcher.Constraint("Vertical", 69, 2, 76, 2),
    Sketcher.Constraint("Vertical", 65, 2, 80, 2),
    Sketcher.Constraint("Equal", 40, 44),
    Sketcher.Constraint("Equal", 36, 48),
    Sketcher.Constraint("Equal", 34, 50),
    Sketcher.Constraint("Equal", 32, 52),
    Sketcher.Constraint("Equal", 82, 3),
    Sketcher.Constraint("Equal", 78, 11),
    Sketcher.Constraint("Equal", 9, 13),
    Sketcher.Constraint("Equal", 5, 17),
    Sketcher.Constraint("Equal", 3, 19),
    Sketcher.Constraint("Equal", 19, 23),
    Sketcher.Constraint("Equal", 17, 25),
    Sketcher.Constraint("Equal", 15, 27),
    Sketcher.Constraint("Equal", 11, 31),
    Sketcher.Constraint("Equal", 29, 33),
    Sketcher.Constraint("Equal", 25, 37),
    Sketcher.Constraint("Equal", 23, 39),
    Sketcher.Constraint("Equal", 1, 41),
    Sketcher.Constraint("Diameter", 84, 3.0),
    Sketcher.Constraint("Diameter", 87, 23.0),
    Sketcher.Constraint("DistanceX", 0, 2, 0, 1, 80.0),
    Sketcher.Constraint("DistanceX", 2, 2, 2, 1, 5.0),
    Sketcher.Constraint("DistanceX", 6, 1, 6, 2, 3.0),
    Sketcher.Constraint("DistanceY", 1, 2, 1, 1, 10.0),
    Sketcher.Constraint("DistanceY", 21, 2, 21, 1, 20.0),
    Sketcher.Constraint("DistanceX", 8, 1, 8, 2, 2.3),
    Sketcher.Constraint("DistanceX", 10, 1, 10, 2, 4.7),
    Sketcher.Constraint("DistanceY", 5, 2, 5, 1, 3.5),
    Sketcher.Constraint("DistanceY", 7, 1, 7, 2, 1.1),
    Sketcher.Constraint("DistanceX", 87, 3, -1, 1, 40.0),
    Sketcher.Constraint("DistanceX", 84, 3, -1, 1, 55.922),
    Sketcher.Constraint("DistanceY", -1, 1, 84, 3, 39.078),
    Sketcher.Constraint("DistanceX", 85, 3, -1, 1, 24.078),
    Sketcher.Constraint("DistanceY", -1, 1, 86, 3, 70.922),
])
pad1 = doc.addObject("PartDesign::Pad", "Pad")
body.addObject(pad1)
pad1.Profile = sketch1
pad1.Length = 5

# Sketch on XY plane
sketch2 = doc.addObject("Sketcher::SketchObject", "Sketch001")
body.addObject(sketch2)
sketch2.AttachmentSupport = (doc.XY_Plane, [""])
sketch2.MapMode = "FlatFace"
sketch2.addGeometry([
    Part.Circle(Vector(-40, 55, 0), Vector(0, 0, 1), 11.5),
    Part.Circle(Vector(-40, 55, 0), Vector(0, 0, 1), 2.7),
], False)
sketch2.addConstraint([
    Sketcher.Constraint("Coincident", 1, 3, 0, 3),
    Sketcher.Constraint("Diameter", 0, 23.0),
    Sketcher.Constraint("Diameter", 1, 5.4),
    Sketcher.Constraint("DistanceX", 0, 3, -1, 1, 40.0),
    Sketcher.Constraint("DistanceY", -1, 1, 0, 3, 55.0),
])
pad2 = doc.addObject("PartDesign::Pad", "Pad001")
body.addObject(pad2)
pad2.Profile = sketch2
pad2.Length = 5

# Sketch on XY plane
sketch3 = doc.addObject("Sketcher::SketchObject", "Sketch002")
body.addObject(sketch3)
sketch3.AttachmentSupport = (doc.XY_Plane, [""])
sketch3.MapMode = "FlatFace"
sketch3.AttachmentOffset = App.Placement(Vector(0, 0, 5), App.Rotation())
sketch3.addGeometry([
    Part.LineSegment(Vector(5, 125, 0), Vector(-14.5, 125, 0)),  # 0
    Part.LineSegment(Vector(-14.5, 125, 0), Vector(-37, 80, 0)),  # 1
    Part.LineSegment(Vector(-37, 80, 0), Vector(-10, 80, 0)),  # 2
    Part.LineSegment(Vector(-10, 80, 0), Vector(-10, 90, 0)),  # 3
    Part.LineSegment(Vector(-10, 90, 0), Vector(5, 120, 0)),  # 4
    Part.LineSegment(Vector(5, 120, 0), Vector(5, 125, 0)),  # 5
    Part.Circle(Vector(-9.5, 120, 0), Vector(0, 0, 1), 1),  # 6
    Part.Circle(Vector(0, 120, 0), Vector(0, 0, 1), 1),  # 7
], False)
sketch3.addConstraint([
    Sketcher.Constraint("Coincident", 0, 2, 1, 1),
    Sketcher.Constraint("Coincident", 1, 2, 2, 1),
    Sketcher.Constraint("Coincident", 2, 2, 3, 1),
    Sketcher.Constraint("Coincident", 3, 2, 4, 1),
    Sketcher.Constraint("Coincident", 4, 2, 5, 1),
    Sketcher.Constraint("Coincident", 5, 2, 0, 1),
    Sketcher.Constraint("Horizontal", 0),
    Sketcher.Constraint("Horizontal", 2),
    Sketcher.Constraint("Vertical", 3),
    Sketcher.Constraint("Vertical", 5),
    Sketcher.Constraint("Equal", 6, 7),
    Sketcher.Constraint("PointOnObject", 7, 3, -2),
    Sketcher.Constraint("Parallel", 1, 4),
    Sketcher.Constraint("Horizontal", 6, 3, 7, 3),
    Sketcher.Constraint("Horizontal", 7, 3, 4, 2),
    Sketcher.Constraint("Diameter", 6, 2.0),
    Sketcher.Constraint("DistanceX", 2, 1, 2, 2, 27.0),
    Sketcher.Constraint("DistanceY", 3, 1, 3, 2, 10.0),
    Sketcher.Constraint("DistanceY", 5, 1, 5, 2, 5.0),
    Sketcher.Constraint("DistanceX", 0, 2, 0, 1, 19.5),
    Sketcher.Constraint("DistanceY", -1, 1, 6, 3, 120.0),
    Sketcher.Constraint("DistanceX", 1, 2, -1, 1, 37.0),
    Sketcher.Constraint("DistanceY", -1, 1, 1, 2, 80.0),
    Sketcher.Constraint("DistanceX", 0, 2, 6, 3, 5.0),
])
pad3 = doc.addObject("PartDesign::Pad", "Pad002")
body.addObject(pad3)
pad3.Profile = sketch3
pad3.Length = 5
pad3.Reversed = True
doc.recompute()

fillet = doc.addObject("PartDesign::Fillet", "Fillet")
body.addObject(fillet)
fillet.Base = (pad3, edges_at(pad3, [
    (-10, 90, 2.5),
    (-10, 80, 2.5),
    (-37, 80, 2.5),
    (-14.5, 125, 2.5),
    (5, 125, 2.5),
    (5, 120, 2.5),
]))
fillet.Radius = 3

doc.recompute()
